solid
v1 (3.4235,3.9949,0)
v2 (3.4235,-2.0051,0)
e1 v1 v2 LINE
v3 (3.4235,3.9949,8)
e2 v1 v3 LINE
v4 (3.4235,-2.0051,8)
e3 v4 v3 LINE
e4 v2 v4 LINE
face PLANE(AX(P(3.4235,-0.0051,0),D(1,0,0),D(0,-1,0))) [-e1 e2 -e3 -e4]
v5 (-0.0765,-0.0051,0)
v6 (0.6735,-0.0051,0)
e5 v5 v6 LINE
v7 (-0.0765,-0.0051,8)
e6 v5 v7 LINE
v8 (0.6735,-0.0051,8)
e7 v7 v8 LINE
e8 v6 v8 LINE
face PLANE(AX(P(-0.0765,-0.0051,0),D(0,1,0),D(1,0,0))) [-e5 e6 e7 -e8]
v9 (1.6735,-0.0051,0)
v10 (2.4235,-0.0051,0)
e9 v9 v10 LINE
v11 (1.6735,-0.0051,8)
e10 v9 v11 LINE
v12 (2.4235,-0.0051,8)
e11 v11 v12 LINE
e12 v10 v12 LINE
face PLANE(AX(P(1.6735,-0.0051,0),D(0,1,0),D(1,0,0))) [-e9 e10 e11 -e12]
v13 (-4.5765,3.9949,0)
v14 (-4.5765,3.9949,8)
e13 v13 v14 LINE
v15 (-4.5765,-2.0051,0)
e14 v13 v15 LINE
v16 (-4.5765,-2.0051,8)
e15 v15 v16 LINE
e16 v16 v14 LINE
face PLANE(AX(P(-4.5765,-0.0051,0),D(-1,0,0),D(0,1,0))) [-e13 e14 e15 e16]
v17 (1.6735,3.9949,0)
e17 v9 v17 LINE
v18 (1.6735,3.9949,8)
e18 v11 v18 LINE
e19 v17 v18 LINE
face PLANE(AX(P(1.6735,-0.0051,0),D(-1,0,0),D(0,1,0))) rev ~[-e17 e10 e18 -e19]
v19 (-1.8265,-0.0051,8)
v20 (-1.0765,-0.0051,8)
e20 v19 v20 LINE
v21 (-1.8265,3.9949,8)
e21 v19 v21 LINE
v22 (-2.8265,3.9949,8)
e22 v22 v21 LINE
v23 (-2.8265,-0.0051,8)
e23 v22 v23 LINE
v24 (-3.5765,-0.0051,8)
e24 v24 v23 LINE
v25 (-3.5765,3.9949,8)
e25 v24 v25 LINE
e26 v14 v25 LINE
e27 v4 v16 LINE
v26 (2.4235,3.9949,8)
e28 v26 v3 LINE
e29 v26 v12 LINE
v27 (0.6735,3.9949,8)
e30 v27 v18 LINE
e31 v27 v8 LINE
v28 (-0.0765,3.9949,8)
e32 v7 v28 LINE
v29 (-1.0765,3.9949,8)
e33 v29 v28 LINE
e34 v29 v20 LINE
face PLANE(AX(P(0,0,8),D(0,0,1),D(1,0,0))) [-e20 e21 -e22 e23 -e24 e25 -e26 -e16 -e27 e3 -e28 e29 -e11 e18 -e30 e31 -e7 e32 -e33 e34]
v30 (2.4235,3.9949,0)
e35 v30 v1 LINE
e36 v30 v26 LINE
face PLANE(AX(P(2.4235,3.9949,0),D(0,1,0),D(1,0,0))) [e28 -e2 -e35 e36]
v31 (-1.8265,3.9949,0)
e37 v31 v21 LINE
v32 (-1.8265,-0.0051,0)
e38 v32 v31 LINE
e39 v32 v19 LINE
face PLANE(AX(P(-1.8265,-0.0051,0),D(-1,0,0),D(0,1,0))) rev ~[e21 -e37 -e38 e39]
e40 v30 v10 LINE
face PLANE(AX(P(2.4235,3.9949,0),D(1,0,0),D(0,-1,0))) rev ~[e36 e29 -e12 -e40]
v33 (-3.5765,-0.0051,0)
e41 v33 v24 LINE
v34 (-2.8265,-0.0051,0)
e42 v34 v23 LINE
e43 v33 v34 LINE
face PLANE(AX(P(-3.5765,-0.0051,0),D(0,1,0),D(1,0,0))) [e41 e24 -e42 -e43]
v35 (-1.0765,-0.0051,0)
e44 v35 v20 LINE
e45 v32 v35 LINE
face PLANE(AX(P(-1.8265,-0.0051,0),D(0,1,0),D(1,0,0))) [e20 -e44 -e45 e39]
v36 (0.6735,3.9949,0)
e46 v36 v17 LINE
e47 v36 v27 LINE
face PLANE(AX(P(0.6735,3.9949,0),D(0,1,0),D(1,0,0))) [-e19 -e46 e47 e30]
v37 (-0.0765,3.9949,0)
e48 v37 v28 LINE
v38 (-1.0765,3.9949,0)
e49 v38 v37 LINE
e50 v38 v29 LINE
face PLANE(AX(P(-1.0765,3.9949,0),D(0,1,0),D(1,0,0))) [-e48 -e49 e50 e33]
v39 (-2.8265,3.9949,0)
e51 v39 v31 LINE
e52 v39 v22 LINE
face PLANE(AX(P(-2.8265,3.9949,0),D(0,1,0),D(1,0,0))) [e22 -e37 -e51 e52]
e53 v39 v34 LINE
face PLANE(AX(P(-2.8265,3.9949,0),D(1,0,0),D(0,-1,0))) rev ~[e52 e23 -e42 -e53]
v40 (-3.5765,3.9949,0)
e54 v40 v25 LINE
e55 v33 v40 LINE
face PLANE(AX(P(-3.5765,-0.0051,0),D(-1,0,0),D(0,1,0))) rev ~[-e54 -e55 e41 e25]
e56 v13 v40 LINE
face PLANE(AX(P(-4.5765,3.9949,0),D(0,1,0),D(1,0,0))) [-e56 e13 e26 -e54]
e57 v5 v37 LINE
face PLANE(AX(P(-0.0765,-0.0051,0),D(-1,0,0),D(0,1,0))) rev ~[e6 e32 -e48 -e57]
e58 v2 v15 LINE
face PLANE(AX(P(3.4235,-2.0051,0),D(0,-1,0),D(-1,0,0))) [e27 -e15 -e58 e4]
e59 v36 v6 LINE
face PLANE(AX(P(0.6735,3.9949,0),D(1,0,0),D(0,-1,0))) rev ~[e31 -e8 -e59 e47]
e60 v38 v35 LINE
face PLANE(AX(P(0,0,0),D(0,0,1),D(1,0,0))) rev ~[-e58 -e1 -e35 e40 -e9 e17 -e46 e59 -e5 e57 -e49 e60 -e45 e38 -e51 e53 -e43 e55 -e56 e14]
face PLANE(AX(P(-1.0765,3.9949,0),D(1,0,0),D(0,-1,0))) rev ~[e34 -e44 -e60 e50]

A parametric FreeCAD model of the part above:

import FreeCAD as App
import Part
import Sketcher
from FreeCAD import Vector
Q = App.Units.Quantity


def add_polygon(sketch, points):
    """Adds a closed chain of lines whose ends are joined by coincident constraints."""
    first, n = sketch.GeometryCount, len(points)
    for a, b in zip(points, points[1:] + points[:1]):
        sketch.addGeometry(Part.LineSegment(App.Vector(*a, 0), App.Vector(*b, 0)), False)
    for i in range(n):
        sketch.addConstraint(Sketcher.Constraint("Coincident", first + i, 2, first + (i + 1) % n, 1))

doc = App.newDocument("Part")
params = doc.addObject("Spreadsheet::Sheet", "Params")
for row, (alias, value) in enumerate([
    ("sketch1_width", "1 mm"),
    ("sketch1_width2", "8 mm"),
    ("sketch1_height", "6 mm"),
    ("pad1_length", "8 mm"),
], start=1):
    params.set(f"A{row}", alias)
    params.set(f"B{row}", "=" + value)
    params.setAlias(f"B{row}", alias)

body = doc.addObject("PartDesign::Body", "Body")

# Sketch on XY plane
sketch1 = body.newObject("Sketcher::SketchObject", "Sketch")
sketch1.AttachmentSupport = (doc.getObject("XY_Plane"), [""])
sketch1.MapMode = "FlatFace"
add_polygon(sketch1, [(-3.6, 4), (-4.6, 4), (-4.6, -2), (3.4, -2), (3.4, 4), (2.4, 4), (2.4, 0), (1.7, 0), (1.7, 4), (0.7, 4), (0.7, 0), (-0.1, 0), (-0.1, 4), (-1.1, 4), (-1.1, 0), (-1.8, 0), (-1.8, 4), (-2.8, 4), (-2.8, 0), (-3.6, 0)])  # lines 0-19
sketch1.addConstraint([
    Sketcher.Constraint("Horizontal", 0),
    Sketcher.Constraint("Vertical", 1),
    Sketcher.Constraint("Horizontal", 2),
    Sketcher.Constraint("Vertical", 3),
    Sketcher.Constraint("Horizontal", 4),
    Sketcher.Constraint("Vertical", 5),
    Sketcher.Constraint("Horizontal", 6),
    Sketcher.Constraint("Vertical", 7),
    Sketcher.Constraint("Horizontal", 8),
    Sketcher.Constraint("Vertical", 9),
    Sketcher.Constraint("Horizontal", 10),
    Sketcher.Constraint("Vertical", 11),
    Sketcher.Constraint("Horizontal", 12),
    Sketcher.Constraint("Vertical", 13),
    Sketcher.Constraint("Horizontal", 14),
    Sketcher.Constraint("Vertical", 15),
    Sketcher.Constraint("Horizontal", 16),
    Sketcher.Constraint("Vertical", 17),
    Sketcher.Constraint("Horizontal", 18),
    Sketcher.Constraint("Vertical", 19),
    Sketcher.Constraint("Horizontal", 0, 2, 3, 2),
    Sketcher.Constraint("Horizontal", 4, 2, 7, 2),
    Sketcher.Constraint("Horizontal", 6, 2, 9, 2),
    Sketcher.Constraint("Horizontal", 8, 2, 11, 2),
    Sketcher.Constraint("Horizontal", 10, 2, 13, 2),
    Sketcher.Constraint("Horizontal", 12, 2, 15, 2),
    Sketcher.Constraint("Horizontal", 14, 2, 17, 2),
    Sketcher.Constraint("Equal", 0, 4),
    Sketcher.Constraint("Equal", 4, 8),
    Sketcher.Constraint("Equal", 6, 10),
    Sketcher.Constraint("Equal", 8, 12),
    Sketcher.Constraint("Equal", 10, 14),
    Sketcher.Constraint("Equal", 12, 16),
    Sketcher.Constraint("Equal", 14, 18),
    Sketcher.Constraint("DistanceX", 0, 2, 0, 1, Q("1 mm")),
    Sketcher.Constraint("DistanceX", 2, 1, 2, 2, Q("8 mm")),
    Sketcher.Constraint("DistanceY", 1, 2, 1, 1, Q("6 mm")),
    Sketcher.Constraint("DistanceY", 2, 2, 5, 2, Q("2 mm")),
    Sketcher.Constraint("DistanceY", -1, 1, 0, 2, Q("3.995 mm")),
    Sketcher.Constraint("DistanceX", 0, 2, -1, 1, Q("4.5765 mm")),
])
sketch1.setExpression("Constraints[54]", "Params.sketch1_width")
sketch1.setExpression("Constraints[55]", "Params.sketch1_width2")
sketch1.setExpression("Constraints[56]", "Params.sketch1_height")
pad1 = body.newObject("PartDesign::Pad", "Pad")
pad1.Profile = sketch1
pad1.setExpression("Length", "Params.pad1_length")

doc.recompute()
